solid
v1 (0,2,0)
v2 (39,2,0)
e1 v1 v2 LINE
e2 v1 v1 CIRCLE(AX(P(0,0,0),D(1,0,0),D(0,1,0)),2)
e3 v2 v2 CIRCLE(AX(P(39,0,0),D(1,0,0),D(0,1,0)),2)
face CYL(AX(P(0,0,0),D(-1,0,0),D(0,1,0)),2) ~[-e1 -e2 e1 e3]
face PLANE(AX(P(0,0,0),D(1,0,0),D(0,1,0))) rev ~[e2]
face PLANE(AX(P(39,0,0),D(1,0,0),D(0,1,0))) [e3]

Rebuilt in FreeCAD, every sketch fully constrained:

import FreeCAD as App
import Part
import Sketcher

V = App.Vector
Q = App.Units.Quantity

doc = App.newDocument("Part")
body = doc.addObject("PartDesign::Body", "Body")

# Sketch on YZ plane
sketch1 = body.newObject("Sketcher::SketchObject", "Sketch")
sketch1.AttachmentSupport = (doc.getObject("YZ_Plane"), [""])
sketch1.MapMode = "FlatFace"
sketch1.addGeometry(Part.Circle(V(0, 0, 0), V(0, 0, 1), 2), False)
sketch1.addConstraint(Sketcher.Constraint("Coincident", 0, 3, -1, 1))
sketch1.addConstraint(Sketcher.Constraint("Diameter", 0, Q("4 mm")))
pad1 = body.newObject("PartDesign::Pad", "Pad")
pad1.Profile = sketch1
pad1.Length = 39

doc.recompute()
